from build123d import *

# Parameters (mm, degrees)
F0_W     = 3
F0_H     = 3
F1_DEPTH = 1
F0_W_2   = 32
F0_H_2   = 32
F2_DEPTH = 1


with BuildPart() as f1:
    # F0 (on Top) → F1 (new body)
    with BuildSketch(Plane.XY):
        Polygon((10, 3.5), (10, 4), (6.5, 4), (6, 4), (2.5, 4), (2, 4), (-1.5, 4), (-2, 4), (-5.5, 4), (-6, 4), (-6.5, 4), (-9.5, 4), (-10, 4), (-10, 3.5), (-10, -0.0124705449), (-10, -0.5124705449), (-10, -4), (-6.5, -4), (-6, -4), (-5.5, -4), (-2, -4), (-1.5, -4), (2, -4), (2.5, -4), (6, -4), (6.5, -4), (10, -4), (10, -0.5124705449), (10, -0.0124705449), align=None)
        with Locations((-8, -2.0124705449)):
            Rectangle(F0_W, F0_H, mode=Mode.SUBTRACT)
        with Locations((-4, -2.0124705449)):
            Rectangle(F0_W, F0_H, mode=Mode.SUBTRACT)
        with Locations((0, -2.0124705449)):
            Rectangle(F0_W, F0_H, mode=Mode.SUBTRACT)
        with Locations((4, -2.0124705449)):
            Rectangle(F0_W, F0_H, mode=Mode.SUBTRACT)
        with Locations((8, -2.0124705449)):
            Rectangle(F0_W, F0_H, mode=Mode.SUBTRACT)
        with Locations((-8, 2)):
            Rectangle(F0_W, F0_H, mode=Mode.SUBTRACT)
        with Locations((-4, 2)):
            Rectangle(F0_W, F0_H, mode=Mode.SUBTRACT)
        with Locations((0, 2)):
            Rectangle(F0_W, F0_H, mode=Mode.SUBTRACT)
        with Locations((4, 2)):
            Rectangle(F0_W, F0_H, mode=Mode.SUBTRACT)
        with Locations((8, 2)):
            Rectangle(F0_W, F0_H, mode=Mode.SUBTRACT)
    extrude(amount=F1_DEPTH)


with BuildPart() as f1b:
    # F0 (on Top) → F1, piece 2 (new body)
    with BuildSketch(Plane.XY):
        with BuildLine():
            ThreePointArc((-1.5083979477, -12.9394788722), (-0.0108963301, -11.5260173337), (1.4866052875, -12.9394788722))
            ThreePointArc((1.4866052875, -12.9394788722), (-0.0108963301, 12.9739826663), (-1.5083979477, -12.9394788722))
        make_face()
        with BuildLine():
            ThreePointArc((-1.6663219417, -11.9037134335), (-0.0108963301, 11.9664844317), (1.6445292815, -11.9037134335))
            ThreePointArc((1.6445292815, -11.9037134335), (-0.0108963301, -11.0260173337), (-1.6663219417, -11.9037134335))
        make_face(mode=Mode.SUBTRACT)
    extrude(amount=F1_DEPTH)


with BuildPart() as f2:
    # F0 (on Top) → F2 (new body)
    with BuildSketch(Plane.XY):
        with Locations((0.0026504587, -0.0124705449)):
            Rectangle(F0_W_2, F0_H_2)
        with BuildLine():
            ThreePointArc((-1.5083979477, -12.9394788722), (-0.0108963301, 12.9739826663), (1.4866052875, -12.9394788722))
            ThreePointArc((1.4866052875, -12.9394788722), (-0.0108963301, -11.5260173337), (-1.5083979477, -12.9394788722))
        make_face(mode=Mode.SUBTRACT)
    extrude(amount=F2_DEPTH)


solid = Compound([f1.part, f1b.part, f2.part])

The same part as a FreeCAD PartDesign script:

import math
import FreeCAD as App
import Part
import Sketcher
from FreeCAD import Vector
Q = App.Units.Quantity

doc = App.newDocument("Part")
body = doc.addObject("PartDesign::Body", "Body")

sketch1 = body.newObject("Sketcher::SketchObject", "Sketch")
sketch1.AttachmentSupport = (doc.getObject("XY_Plane"), [""])
sketch1.MapMode = "FlatFace"
sketch1.addGeometry(Part.LineSegment(Vector(10, 4, 0), Vector(-10, 4, 0)), False)
sketch1.addGeometry(Part.LineSegment(Vector(-10, 4, 0), Vector(-10, -4, 0)), False)
sketch1.addGeometry(Part.LineSegment(Vector(-10, -4, 0), Vector(10, -4, 0)), False)
sketch1.addGeometry(Part.LineSegment(Vector(10, -4, 0), Vector(10, 4, 0)), False)
sketch1.addGeometry(Part.LineSegment(Vector(-6.5, -3.5, 0), Vector(-9.5, -3.5, 0)), False)
sketch1.addGeometry(Part.LineSegment(Vector(-9.5, -3.5, 0), Vector(-9.5, -0.5, 0)), False)
sketch1.addGeometry(Part.LineSegment(Vector(-9.5, -0.5, 0), Vector(-6.5, -0.5, 0)), False)
sketch1.addGeometry(Part.LineSegment(Vector(-6.5, -0.5, 0), Vector(-6.5, -3.5, 0)), False)
sketch1.addGeometry(Part.LineSegment(Vector(-2.5, -3.5, 0), Vector(-5.5, -3.5, 0)), False)
sketch1.addGeometry(Part.LineSegment(Vector(-5.5, -3.5, 0), Vector(-5.5, -0.5, 0)), False)
sketch1.addGeometry(Part.LineSegment(Vector(-5.5, -0.5, 0), Vector(-2.5, -0.5, 0)), False)
sketch1.addGeometry(Part.LineSegment(Vector(-2.5, -0.5, 0), Vector(-2.5, -3.5, 0)), False)
sketch1.addGeometry(Part.LineSegment(Vector(1.5, -3.5, 0), Vector(-1.5, -3.5, 0)), False)
sketch1.addGeometry(Part.LineSegment(Vector(-1.5, -3.5, 0), Vector(-1.5, -0.5, 0)), False)
sketch1.addGeometry(Part.LineSegment(Vector(-1.5, -0.5, 0), Vector(1.5, -0.5, 0)), False)
sketch1.addGeometry(Part.LineSegment(Vector(1.5, -0.5, 0), Vector(1.5, -3.5, 0)), False)
sketch1.addGeometry(Part.LineSegment(Vector(5.5, -3.5, 0), Vector(2.5, -3.5, 0)), False)
sketch1.addGeometry(Part.LineSegment(Vector(2.5, -3.5, 0), Vector(2.5, -0.5, 0)), False)
sketch1.addGeometry(Part.LineSegment(Vector(2.5, -0.5, 0), Vector(5.5, -0.5, 0)), False)
sketch1.addGeometry(Part.LineSegment(Vector(5.5, -0.5, 0), Vector(5.5, -3.5, 0)), False)
sketch1.addGeometry(Part.LineSegment(Vector(9.5, -3.5, 0), Vector(6.5, -3.5, 0)), False)
sketch1.addGeometry(Part.LineSegment(Vector(6.5, -3.5, 0), Vector(6.5, -0.5, 0)), False)
sketch1.addGeometry(Part.LineSegment(Vector(6.5, -0.5, 0), Vector(9.5, -0.5, 0)), False)
sketch1.addGeometry(Part.LineSegment(Vector(9.5, -0.5, 0), Vector(9.5, -3.5, 0)), False)
sketch1.addGeometry(Part.LineSegment(Vector(-6.5, 0.5, 0), Vector(-9.5, 0.5, 0)), False)
sketch1.addGeometry(Part.LineSegment(Vector(-9.5, 0.5, 0), Vector(-9.5, 3.5, 0)), False)
sketch1.addGeometry(Part.LineSegment(Vector(-9.5, 3.5, 0), Vector(-6.5, 3.5, 0)), False)
sketch1.addGeometry(Part.LineSegment(Vector(-6.5, 3.5, 0), Vector(-6.5, 0.5, 0)), False)
sketch1.addGeometry(Part.LineSegment(Vector(-2.5, 0.5, 0), Vector(-5.5, 0.5, 0)), False)
sketch1.addGeometry(Part.LineSegment(Vector(-5.5, 0.5, 0), Vector(-5.5, 3.5, 0)), False)
sketch1.addGeometry(Part.LineSegment(Vector(-5.5, 3.5, 0), Vector(-2.5, 3.5, 0)), False)
sketch1.addGeometry(Part.LineSegment(Vector(-2.5, 3.5, 0), Vector(-2.5, 0.5, 0)), False)
sketch1.addGeometry(Part.LineSegment(Vector(1.5, 0.5, 0), Vector(-1.5, 0.5, 0)), False)
sketch1.addGeometry(Part.LineSegment(Vector(-1.5, 0.5, 0), Vector(-1.5, 3.5, 0)), False)
sketch1.addGeometry(Part.LineSegment(Vector(-1.5, 3.5, 0), Vector(1.5, 3.5, 0)), False)
sketch1.addGeometry(Part.LineSegment(Vector(1.5, 3.5, 0), Vector(1.5, 0.5, 0)), False)
sketch1.addGeometry(Part.LineSegment(Vector(5.5, 0.5, 0), Vector(2.5, 0.5, 0)), False)
sketch1.addGeometry(Part.LineSegment(Vector(2.5, 0.5, 0), Vector(2.5, 3.5, 0)), False)
sketch1.addGeometry(Part.LineSegment(Vector(2.5, 3.5, 0), Vector(5.5, 3.5, 0)), False)
sketch1.addGeometry(Part.LineSegment(Vector(5.5, 3.5, 0), Vector(5.5, 0.5, 0)), False)
sketch1.addGeometry(Part.LineSegment(Vector(9.5, 0.5, 0), Vector(6.5, 0.5, 0)), False)
sketch1.addGeometry(Part.LineSegment(Vector(6.5, 0.5, 0), Vector(6.5, 3.5, 0)), False)
sketch1.addGeometry(Part.LineSegment(Vector(6.5, 3.5, 0), Vector(9.5, 3.5, 0)), False)
sketch1.addGeometry(Part.LineSegment(Vector(9.5, 3.5, 0), Vector(9.5, 0.5, 0)), False)
sketch1.addConstraint(Sketcher.Constraint("Coincident", 0, 2, 1, 1))
sketch1.addConstraint(Sketcher.Constraint("Coincident", 1, 2, 2, 1))
sketch1.addConstraint(Sketcher.Constraint("Coincident", 2, 2, 3, 1))
sketch1.addConstraint(Sketcher.Constraint("Coincident", 3, 2, 0, 1))
sketch1.addConstraint(Sketcher.Constraint("Coincident", 4, 2, 5, 1))
sketch1.addConstraint(Sketcher.Constraint("Coincident", 5, 2, 6, 1))
sketch1.addConstraint(Sketcher.Constraint("Coincident", 6, 2, 7, 1))
sketch1.addConstraint(Sketcher.Constraint("Coincident", 7, 2, 4, 1))
sketch1.addConstraint(Sketcher.Constraint("Coincident", 8, 2, 9, 1))
sketch1.addConstraint(Sketcher.Constraint("Coincident", 9, 2, 10, 1))
sketch1.addConstraint(Sketcher.Constraint("Coincident", 10, 2, 11, 1))
sketch1.addConstraint(Sketcher.Constraint("Coincident", 11, 2, 8, 1))
sketch1.addConstraint(Sketcher.Constraint("Coincident", 12, 2, 13, 1))
sketch1.addConstraint(Sketcher.Constraint("Coincident", 13, 2, 14, 1))
sketch1.addConstraint(Sketcher.Constraint("Coincident", 14, 2, 15, 1))
sketch1.addConstraint(Sketcher.Constraint("Coincident", 15, 2, 12, 1))
sketch1.addConstraint(Sketcher.Constraint("Coincident", 16, 2, 17, 1))
sketch1.addConstraint(Sketcher.Constraint("Coincident", 17, 2, 18, 1))
sketch1.addConstraint(Sketcher.Constraint("Coincident", 18, 2, 19, 1))
sketch1.addConstraint(Sketcher.Constraint("Coincident", 19, 2, 16, 1))
sketch1.addConstraint(Sketcher.Constraint("Coincident", 20, 2, 21, 1))
sketch1.addConstraint(Sketcher.Constraint("Coincident", 21, 2, 22, 1))
sketch1.addConstraint(Sketcher.Constraint("Coincident", 22, 2, 23, 1))
sketch1.addConstraint(Sketcher.Constraint("Coincident", 23, 2, 20, 1))
sketch1.addConstraint(Sketcher.Constraint("Coincident", 24, 2, 25, 1))
sketch1.addConstraint(Sketcher.Constraint("Coincident", 25, 2, 26, 1))
sketch1.addConstraint(Sketcher.Constraint("Coincident", 26, 2, 27, 1))
sketch1.addConstraint(Sketcher.Constraint("Coincident", 27, 2, 24, 1))
sketch1.addConstraint(Sketcher.Constraint("Coincident", 28, 2, 29, 1))
sketch1.addConstraint(Sketcher.Constraint("Coincident", 29, 2, 30, 1))
sketch1.addConstraint(Sketcher.Constraint("Coincident", 30, 2, 31, 1))
sketch1.addConstraint(Sketcher.Constraint("Coincident", 31, 2, 28, 1))
sketch1.addConstraint(Sketcher.Constraint("Coincident", 32, 2, 33, 1))
sketch1.addConstraint(Sketcher.Constraint("Coincident", 33, 2, 34, 1))
sketch1.addConstraint(Sketcher.Constraint("Coincident", 34, 2, 35, 1))
sketch1.addConstraint(Sketcher.Constraint("Coincident", 35, 2, 32, 1))
sketch1.addConstraint(Sketcher.Constraint("Coincident", 36, 2, 37, 1))
sketch1.addConstraint(Sketcher.Constraint("Coincident", 37, 2, 38, 1))
sketch1.addConstraint(Sketcher.Constraint("Coincident", 38, 2, 39, 1))
sketch1.addConstraint(Sketcher.Constraint("Coincident", 39, 2, 36, 1))
sketch1.addConstraint(Sketcher.Constraint("Coincident", 40, 2, 41, 1))
sketch1.addConstraint(Sketcher.Constraint("Coincident", 41, 2, 42, 1))
sketch1.addConstraint(Sketcher.Constraint("Coincident", 42, 2, 43, 1))
sketch1.addConstraint(Sketcher.Constraint("Coincident", 43, 2, 40, 1))
sketch1.addConstraint(Sketcher.Constraint("Horizontal", 0))
sketch1.addConstraint(Sketcher.Constraint("Vertical", 1))
sketch1.addConstraint(Sketcher.Constraint("Horizontal", 2))
sketch1.addConstraint(Sketcher.Constraint("Vertical", 3))
sketch1.addConstraint(Sketcher.Constraint("Horizontal", 4))
sketch1.addConstraint(Sketcher.Constraint("Vertical", 5))
sketch1.addConstraint(Sketcher.Constraint("Horizontal", 6))
sketch1.addConstraint(Sketcher.Constraint("Vertical", 7))
sketch1.addConstraint(Sketcher.Constraint("Horizontal", 8))
sketch1.addConstraint(Sketcher.Constraint("Vertical", 9))
sketch1.addConstraint(Sketcher.Constraint("Horizontal", 10))
sketch1.addConstraint(Sketcher.Constraint("Vertical", 11))
sketch1.addConstraint(Sketcher.Constraint("Horizontal", 12))
sketch1.addConstraint(Sketcher.Constraint("Vertical", 13))
sketch1.addConstraint(Sketcher.Constraint("Horizontal", 14))
sketch1.addConstraint(Sketcher.Constraint("Vertical", 15))
sketch1.addConstraint(Sketcher.Constraint("Horizontal", 16))
sketch1.addConstraint(Sketcher.Constraint("Vertical", 17))
sketch1.addConstraint(Sketcher.Constraint("Horizontal", 18))
sketch1.addConstraint(Sketcher.Constraint("Vertical", 19))
sketch1.addConstraint(Sketcher.Constraint("Horizontal", 20))
sketch1.addConstraint(Sketcher.Constraint("Vertical", 21))
sketch1.addConstraint(Sketcher.Constraint("Horizontal", 22))
sketch1.addConstraint(Sketcher.Constraint("Vertical", 23))
sketch1.addConstraint(Sketcher.Constraint("Horizontal", 24))
sketch1.addConstraint(Sketcher.Constraint("Vertical", 25))
sketch1.addConstraint(Sketcher.Constraint("Horizontal", 26))
sketch1.addConstraint(Sketcher.Constraint("Vertical", 27))
sketch1.addConstraint(Sketcher.Constraint("Horizontal", 28))
sketch1.addConstraint(Sketcher.Constraint("Vertical", 29))
sketch1.addConstraint(Sketcher.Constraint("Horizontal", 30))
sketch1.addConstraint(Sketcher.Constraint("Vertical", 31))
sketch1.addConstraint(Sketcher.Constraint("Horizontal", 32))
sketch1.addConstraint(Sketcher.Constraint("Vertical", 33))
sketch1.addConstraint(Sketcher.Constraint("Horizontal", 34))
sketch1.addConstraint(Sketcher.Constraint("Vertical", 35))
sketch1.addConstraint(Sketcher.Constraint("Horizontal", 36))
sketch1.addConstraint(Sketcher.Constraint("Vertical", 37))
sketch1.addConstraint(Sketcher.Constraint("Horizontal", 38))
sketch1.addConstraint(Sketcher.Constraint("Vertical", 39))
sketch1.addConstraint(Sketcher.Constraint("Horizontal", 40))
sketch1.addConstraint(Sketcher.Constraint("Vertical", 41))
sketch1.addConstraint(Sketcher.Constraint("Horizontal", 42))
sketch1.addConstraint(Sketcher.Constraint("Vertical", 43))
sketch1.addConstraint(Sketcher.Constraint("Symmetric", 0, 2, 2, 2, -1, 1))
sketch1.addConstraint(Sketcher.Constraint("Symmetric", 11, 2, 16, 2, -2))
sketch1.addConstraint(Sketcher.Constraint("Symmetric", 9, 2, 18, 2, -2))
sketch1.addConstraint(Sketcher.Constraint("Symmetric", 7, 2, 20, 2, -2))
sketch1.addConstraint(Sketcher.Constraint("Symmetric", 5, 2, 22, 2, -2))
sketch1.addConstraint(Sketcher.Constraint("Symmetric", 31, 2, 36, 2, -2))
sketch1.addConstraint(Sketcher.Constraint("Symmetric", 29, 2, 38, 2, -2))
sketch1.addConstraint(Sketcher.Constraint("Symmetric", 27, 2, 40, 2, -2))
sketch1.addConstraint(Sketcher.Constraint("Symmetric", 25, 2, 42, 2, -2))
sketch1.addConstraint(Sketcher.Constraint("Horizontal", 7, 2, 8, 2))
sketch1.addConstraint(Sketcher.Constraint("Horizontal", 6, 2, 9, 2))
sketch1.addConstraint(Sketcher.Constraint("Horizontal", 11, 2, 12, 2))
sketch1.addConstraint(Sketcher.Constraint("Horizontal", 10, 2, 13, 2))
sketch1.addConstraint(Sketcher.Constraint("Horizontal", 27, 2, 28, 2))
sketch1.addConstraint(Sketcher.Constraint("Horizontal", 26, 2, 29, 2))
sketch1.addConstraint(Sketcher.Constraint("Horizontal", 31, 2, 32, 2))
sketch1.addConstraint(Sketcher.Constraint("Horizontal", 30, 2, 33, 2))
sketch1.addConstraint(Sketcher.Constraint("Vertical", 5, 2, 24, 2))
sketch1.addConstraint(Sketcher.Constraint("Vertical", 7, 2, 26, 2))
sketch1.addConstraint(Sketcher.Constraint("Vertical", 9, 2, 28, 2))
sketch1.addConstraint(Sketcher.Constraint("Vertical", 11, 2, 30, 2))
sketch1.addConstraint(Sketcher.Constraint("Vertical", 13, 2, 32, 2))
sketch1.addConstraint(Sketcher.Constraint("Vertical", 15, 2, 34, 2))
sketch1.addConstraint(Sketcher.Constraint("Equal", 6, 8))
sketch1.addConstraint(Sketcher.Constraint("Equal", 10, 12))
sketch1.addConstraint(Sketcher.Constraint("Equal", 42, 5))
sketch1.addConstraint(Sketcher.Constraint("Equal", 23, 25))
sketch1.addConstraint(Sketcher.Constraint("DistanceX", 0, 2, 0, 1, Q("20 mm")))
sketch1.addConstraint(Sketcher.Constraint("DistanceX", 4, 2, 4, 1, Q("3 mm")))
sketch1.addConstraint(Sketcher.Constraint("DistanceY", 1, 2, 1, 1, Q("8 mm")))
sketch1.addConstraint(Sketcher.Constraint("DistanceX", 7, 2, 8, 2, Q("1 mm")))
sketch1.addConstraint(Sketcher.Constraint("DistanceX", 11, 2, 12, 2, Q("1 mm")))
sketch1.addConstraint(Sketcher.Constraint("DistanceX", 15, 2, 16, 2, Q("1 mm")))
sketch1.addConstraint(Sketcher.Constraint("DistanceY", -1, 1, 24, 2, Q("0.5 mm")))
sketch1.addConstraint(Sketcher.Constraint("DistanceY", 4, 2, -1, 1, Q("3.512471 mm")))
pad1 = body.newObject("PartDesign::Pad", "Pad")
pad1.Profile = sketch1
pad1.Length = 1
body2 = doc.addObject("PartDesign::Body", "Body001")

sketch2 = body2.newObject("Sketcher::SketchObject", "Sketch001")
sketch2.AttachmentSupport = (doc.getObject("XY_Plane001"), [""])
sketch2.MapMode = "FlatFace"
sketch2.addGeometry(Part.ArcOfCircle(Part.Circle(Vector(0, -13, 0), Vector(0, 0, 1), 1.5), math.radians(3), math.radians(177)), False)
sketch2.addGeometry(Part.ArcOfCircle(Part.Circle(Vector(0, 0, 0), Vector(0, 0, 1), 13), math.radians(-83), math.radians(263)), False)
sketch2.addGeometry(Part.ArcOfCircle(Part.Circle(Vector(0, -13, 0), Vector(0, 0, 1), 2), math.radians(34), math.radians(146)), False)
sketch2.addGeometry(Part.ArcOfCircle(Part.Circle(Vector(0, 0, 0), Vector(0, 0, 1), 12), math.radians(-82), math.radians(262)), False)
sketch2.addConstraint(Sketcher.Constraint("Coincident", 0, 1, 1, 1))
sketch2.addConstraint(Sketcher.Constraint("Coincident", 1, 2, 0, 2))
sketch2.addConstraint(Sketcher.Constraint("Coincident", 2, 1, 3, 1))
sketch2.addConstraint(Sketcher.Constraint("Coincident", 3, 2, 2, 2))
sketch2.addConstraint(Sketcher.Constraint("Coincident", 2, 3, 0, 3))
sketch2.addConstraint(Sketcher.Constraint("Coincident", 3, 3, 1, 3))
sketch2.addConstraint(Sketcher.Constraint("Horizontal", 0, 1, 1, 2))
sketch2.addConstraint(Sketcher.Constraint("Radius", 1, Q("13 mm")))
sketch2.addConstraint(Sketcher.Constraint("Radius", 2, Q("2 mm")))
sketch2.addConstraint(Sketcher.Constraint("Radius", 0, Q("1.5 mm")))
sketch2.addConstraint(Sketcher.Constraint("DistanceY", 0, 3, 1, 3, Q("13 mm")))
sketch2.addConstraint(Sketcher.Constraint("Radius", 3, Q("11.992502 mm")))
sketch2.addConstraint(Sketcher.Constraint("DistanceY", 0, 1, -1, 1, Q("12.939479 mm")))
sketch2.addConstraint(Sketcher.Constraint("DistanceX", -1, 1, 2, 1, Q("1.644529 mm")))
pad2 = body2.newObject("PartDesign::Pad", "Pad001")
pad2.Profile = sketch2
pad2.Length = 1
body3 = doc.addObject("PartDesign::Body", "Body002")

sketch3 = body3.newObject("Sketcher::SketchObject", "Sketch002")
sketch3.AttachmentSupport = (doc.getObject("XY_Plane002"), [""])
sketch3.MapMode = "FlatFace"
sketch3.addGeometry(Part.LineSegment(Vector(-16, 16, 0), Vector(-16, -16, 0)), False)
sketch3.addGeometry(Part.LineSegment(Vector(-16, -16, 0), Vector(16, -16, 0)), False)
sketch3.addGeometry(Part.LineSegment(Vector(16, -16, 0), Vector(16, 16, 0)), False)
sketch3.addGeometry(Part.LineSegment(Vector(16, 16, 0), Vector(-16, 16, 0)), False)
sketch3.addGeometry(Part.ArcOfCircle(Part.Circle(Vector(0, -13, 0), Vector(0, 0, 1), 1.5), math.radians(3), math.radians(177)), False)
sketch3.addGeometry(Part.ArcOfCircle(Part.Circle(Vector(0, 0, 0), Vector(0, 0, 1), 13), math.radians(-83), math.radians(263)), False)
sketch3.addConstraint(Sketcher.Constraint("Coincident", 0, 2, 1, 1))
sketch3.addConstraint(Sketcher.Constraint("Coincident", 1, 2, 2, 1))
sketch3.addConstraint(Sketcher.Constraint("Coincident", 2, 2, 3, 1))
sketch3.addConstraint(Sketcher.Constraint("Coincident", 3, 2, 0, 1))
sketch3.addConstraint(Sketcher.Constraint("Coincident", 4, 1, 5, 1))
sketch3.addConstraint(Sketcher.Constraint("Coincident", 5, 2, 4, 2))
sketch3.addConstraint(Sketcher.Constraint("Vertical", 0))
sketch3.addConstraint(Sketcher.Constraint("Horizontal", 1))
sketch3.addConstraint(Sketcher.Constraint("Vertical", 2))
sketch3.addConstraint(Sketcher.Constraint("Horizontal", 3))
sketch3.addConstraint(Sketcher.Constraint("Horizontal", 4, 1, 5, 2))
sketch3.addConstraint(Sketcher.Constraint("Equal", 3, 0))
sketch3.addConstraint(Sketcher.Constraint("Radius", 5, Q("13 mm")))
sketch3.addConstraint(Sketcher.Constraint("Radius", 4, Q("1.5 mm")))
sketch3.addConstraint(Sketcher.Constraint("DistanceX", 1, 1, 1, 2, Q("32 mm")))
sketch3.addConstraint(Sketcher.Constraint("DistanceY", 4, 3, 5, 3, Q("13 mm")))
sketch3.addConstraint(Sketcher.Constraint("DistanceX", 0, 2, -1, 1, Q("15.99735 mm")))
sketch3.addConstraint(Sketcher.Constraint("DistanceY", 0, 2, -1, 1, Q("16.012471 mm")))
sketch3.addConstraint(Sketcher.Constraint("DistanceY", 4, 1, -1, 1, Q("12.939479 mm")))
sketch3.addConstraint(Sketcher.Constraint("DistanceX", 0, 2, 5, 2, Q("14.488952 mm")))
pad3 = body3.newObject("PartDesign::Pad", "Pad002")
pad3.Profile = sketch3
pad3.Length = 1

doc.recompute()
